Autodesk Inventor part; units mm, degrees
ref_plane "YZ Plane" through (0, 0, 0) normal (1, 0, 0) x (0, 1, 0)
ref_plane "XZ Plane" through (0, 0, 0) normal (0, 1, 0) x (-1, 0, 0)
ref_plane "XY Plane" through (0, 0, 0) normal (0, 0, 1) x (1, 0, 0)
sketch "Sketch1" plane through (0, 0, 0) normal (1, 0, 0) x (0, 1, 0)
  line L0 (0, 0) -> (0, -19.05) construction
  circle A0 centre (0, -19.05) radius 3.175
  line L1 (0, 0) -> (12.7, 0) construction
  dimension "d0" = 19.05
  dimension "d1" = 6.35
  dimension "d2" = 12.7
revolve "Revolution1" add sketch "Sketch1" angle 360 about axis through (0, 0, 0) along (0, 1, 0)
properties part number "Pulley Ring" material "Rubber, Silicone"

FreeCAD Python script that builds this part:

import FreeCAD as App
import Part
import Sketcher
from FreeCAD import Vector
Q = App.Units.Quantity

doc = App.newDocument("Part")
body = doc.addObject("PartDesign::Body", "Body")

sketch1 = doc.addObject("Sketcher::SketchObject", "Sketch")
body.addObject(sketch1)
sketch1.AttachmentSupport = (doc.YZ_Plane, [""])
sketch1.MapMode = "FlatFace"
sketch1.addGeometry(Part.Circle(Vector(0, -19.1, 0), Vector(0, 0, 1), 3.2), False)
sketch1.addConstraint([
    Sketcher.Constraint("PointOnObject", 0, 3, -2),
    Sketcher.Constraint("Diameter", 0, Q("0.25 in")),
    Sketcher.Constraint("DistanceY", 0, 3, -1, 1, Q("0.75 in")),
])
revolution = doc.addObject("PartDesign::Revolution", "Revolution")
body.addObject(revolution)
revolution.Profile = sketch1
revolution.ReferenceAxis = (sketch1, ["H_Axis"])
revolution.Angle = 360

doc.recompute()
